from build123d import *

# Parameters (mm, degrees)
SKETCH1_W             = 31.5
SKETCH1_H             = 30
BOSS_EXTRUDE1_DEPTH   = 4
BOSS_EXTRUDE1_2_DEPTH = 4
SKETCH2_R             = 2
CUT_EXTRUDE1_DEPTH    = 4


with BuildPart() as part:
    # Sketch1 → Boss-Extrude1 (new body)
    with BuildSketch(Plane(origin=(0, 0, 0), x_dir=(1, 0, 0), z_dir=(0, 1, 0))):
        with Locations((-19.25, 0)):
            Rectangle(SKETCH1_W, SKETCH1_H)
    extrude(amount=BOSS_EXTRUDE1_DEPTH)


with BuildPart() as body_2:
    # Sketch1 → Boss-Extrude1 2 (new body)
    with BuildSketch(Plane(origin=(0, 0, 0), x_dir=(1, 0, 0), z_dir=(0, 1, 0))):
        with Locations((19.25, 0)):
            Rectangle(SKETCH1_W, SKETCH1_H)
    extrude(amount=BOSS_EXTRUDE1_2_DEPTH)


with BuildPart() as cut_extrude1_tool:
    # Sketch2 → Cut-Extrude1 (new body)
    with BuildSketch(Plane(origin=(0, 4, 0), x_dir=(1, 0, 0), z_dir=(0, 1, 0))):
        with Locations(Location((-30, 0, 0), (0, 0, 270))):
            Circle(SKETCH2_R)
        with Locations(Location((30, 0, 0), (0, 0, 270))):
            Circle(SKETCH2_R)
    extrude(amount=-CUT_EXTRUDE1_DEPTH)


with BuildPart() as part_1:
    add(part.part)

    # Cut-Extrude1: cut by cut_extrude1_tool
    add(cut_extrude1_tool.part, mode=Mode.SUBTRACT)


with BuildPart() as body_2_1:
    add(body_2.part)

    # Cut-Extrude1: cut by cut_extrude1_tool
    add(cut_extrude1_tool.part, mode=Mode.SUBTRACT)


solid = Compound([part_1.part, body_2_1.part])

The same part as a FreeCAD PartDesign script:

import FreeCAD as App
import Part
import Sketcher
from FreeCAD import Vector
Q = App.Units.Quantity


def add_polygon(sketch, points):
    """Adds a closed chain of lines whose ends are joined by coincident constraints."""
    first, n = sketch.GeometryCount, len(points)
    for a, b in zip(points, points[1:] + points[:1]):
        sketch.addGeometry(Part.LineSegment(App.Vector(*a, 0), App.Vector(*b, 0)), False)
    for i in range(n):
        sketch.addConstraint(Sketcher.Constraint("Coincident", first + i, 2, first + (i + 1) % n, 1))

doc = App.newDocument("Part")
body = doc.addObject("PartDesign::Body", "Body")

# Sketch on XZ plane
sketch1 = body.newObject("Sketcher::SketchObject", "Sketch")
sketch1.AttachmentSupport = (doc.getObject("XZ_Plane"), [""])
sketch1.MapMode = "FlatFace"
add_polygon(sketch1, [(-35, -15), (-35, 15), (-4, 15), (-4, -15)])  # lines 0-3
sketch1.addConstraint([
    Sketcher.Constraint("Vertical", 0),
    Sketcher.Constraint("Horizontal", 1),
    Sketcher.Constraint("Vertical", 2),
    Sketcher.Constraint("Horizontal", 3),
    Sketcher.Constraint("DistanceY", 0, 1, 0, 2, Q("30 mm")),
    Sketcher.Constraint("DistanceX", 1, 1, 1, 2, Q("31.5 mm")),
    Sketcher.Constraint("DistanceX", 0, 2, -1, 1, Q("35 mm")),
    Sketcher.Constraint("DistanceY", -1, 1, 0, 2, Q("15 mm")),
])
pad1 = body.newObject("PartDesign::Pad", "Pad")
pad1.Profile = sketch1
pad1.Length = 4
pad1.Reversed = True
body2 = doc.addObject("PartDesign::Body", "Body001")

# Sketch on XZ plane
sketch2 = body2.newObject("Sketcher::SketchObject", "Sketch001")
sketch2.AttachmentSupport = (doc.getObject("XZ_Plane001"), [""])
sketch2.MapMode = "FlatFace"
add_polygon(sketch2, [(4, -15), (4, 15), (35, 15), (35, -15)])  # lines 0-3
sketch2.addConstraint([
    Sketcher.Constraint("Vertical", 0),
    Sketcher.Constraint("Horizontal", 1),
    Sketcher.Constraint("Vertical", 2),
    Sketcher.Constraint("Horizontal", 3),
    Sketcher.Constraint("DistanceY", 0, 1, 0, 2, Q("30 mm")),
    Sketcher.Constraint("DistanceX", 1, 1, 1, 2, Q("31.5 mm")),
    Sketcher.Constraint("DistanceY", -1, 1, 0, 2, Q("15 mm")),
    Sketcher.Constraint("DistanceX", -1, 1, 1, 2, Q("35 mm")),
])
pad2 = body2.newObject("PartDesign::Pad", "Pad001")
pad2.Profile = sketch2
pad2.Length = 4
pad2.Reversed = True
body3 = doc.addObject("PartDesign::Body", "Body002")
body3.AllowCompound = True

# Sketch on XZ plane
sketch3 = body3.newObject("Sketcher::SketchObject", "Sketch002")
sketch3.AttachmentSupport = (doc.getObject("XZ_Plane002"), [""])
sketch3.MapMode = "FlatFace"
sketch3.AttachmentOffset = App.Placement(Vector(0, 0, -4), App.Rotation())
sketch3.addGeometry([
    Part.Circle(Vector(-30, 0, 0), Vector(0, 0, 1), 2),
    Part.Circle(Vector(30, 0, 0), Vector(0, 0, 1), 2),
], False)
sketch3.addConstraint([
    Sketcher.Constraint("Equal", 0, 1),
    Sketcher.Constraint("Symmetric", 0, 3, 1, 3, -1, 1),
    Sketcher.Constraint("PointOnObject", 0, 3, -1),
    Sketcher.Constraint("Diameter", 0, Q("4 mm")),
    Sketcher.Constraint("DistanceX", 0, 3, -1, 1, Q("30 mm")),
])
pad3 = body3.newObject("PartDesign::Pad", "Pad002")
pad3.Profile = sketch3
pad3.Length = 4
doc.recompute()

body4 = doc.addObject("PartDesign::Body", "Body003")
body4.BaseFeature = body3
boolean = body.newObject("PartDesign::Boolean", "Boolean")
boolean.Type = "Cut"
boolean.addObjects([body4])
doc.recompute()

boolean2 = body2.newObject("PartDesign::Boolean", "Boolean001")
boolean2.Type = "Cut"
boolean2.addObjects([body3])

doc.recompute()
